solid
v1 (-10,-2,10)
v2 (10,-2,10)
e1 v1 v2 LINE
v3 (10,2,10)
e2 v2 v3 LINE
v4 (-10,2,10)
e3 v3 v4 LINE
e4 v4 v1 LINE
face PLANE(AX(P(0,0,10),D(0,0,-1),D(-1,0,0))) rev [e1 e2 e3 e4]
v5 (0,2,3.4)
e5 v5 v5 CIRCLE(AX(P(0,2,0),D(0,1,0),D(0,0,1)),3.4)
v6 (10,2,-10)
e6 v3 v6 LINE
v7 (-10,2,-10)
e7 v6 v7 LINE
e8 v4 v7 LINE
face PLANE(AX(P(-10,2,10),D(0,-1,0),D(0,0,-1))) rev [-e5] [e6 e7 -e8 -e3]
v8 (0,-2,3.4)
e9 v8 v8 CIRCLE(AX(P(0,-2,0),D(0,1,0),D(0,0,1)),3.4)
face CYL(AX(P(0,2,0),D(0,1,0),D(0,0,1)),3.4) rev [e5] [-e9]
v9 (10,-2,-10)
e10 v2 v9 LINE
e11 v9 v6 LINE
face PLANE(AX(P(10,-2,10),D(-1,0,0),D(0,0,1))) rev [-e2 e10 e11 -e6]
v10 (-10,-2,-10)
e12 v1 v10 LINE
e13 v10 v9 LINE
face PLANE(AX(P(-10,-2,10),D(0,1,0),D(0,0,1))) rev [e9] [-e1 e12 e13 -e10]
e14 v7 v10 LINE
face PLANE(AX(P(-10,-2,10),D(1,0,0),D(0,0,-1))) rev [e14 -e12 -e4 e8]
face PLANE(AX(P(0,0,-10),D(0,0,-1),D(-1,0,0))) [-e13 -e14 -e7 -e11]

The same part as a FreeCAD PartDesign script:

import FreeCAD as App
import Part
import Sketcher

doc = App.newDocument("Part")
body = doc.addObject("PartDesign::Body", "Body")

# Sketch on XY plane
sketch1 = body.newObject("Sketcher::SketchObject", "Sketch")
sketch1.AttachmentSupport = (doc.getObject("XY_Plane"), [""])
sketch1.MapMode = "FlatFace"
sketch1.addGeometry([
    Part.LineSegment(App.Vector(-10, 2, 0), App.Vector(-10, -2, 0)),
    Part.LineSegment(App.Vector(-10, -2, 0), App.Vector(10, -2, 0)),
    Part.LineSegment(App.Vector(10, -2, 0), App.Vector(10, 2, 0)),
    Part.LineSegment(App.Vector(10, 2, 0), App.Vector(-10, 2, 0)),
], False)
sketch1.addConstraint([
    Sketcher.Constraint("Coincident", 0, 2, 1, 1),
    Sketcher.Constraint("Coincident", 1, 2, 2, 1),
    Sketcher.Constraint("Coincident", 2, 2, 3, 1),
    Sketcher.Constraint("Coincident", 3, 2, 0, 1),
    Sketcher.Constraint("Vertical", 0),
    Sketcher.Constraint("Horizontal", 1),
    Sketcher.Constraint("Vertical", 2),
    Sketcher.Constraint("Horizontal", 3),
    Sketcher.Constraint("Symmetric", 0, 2, 2, 2, -1, 1),
    Sketcher.Constraint("DistanceX", 1, 1, 1, 2, 20.0),
    Sketcher.Constraint("DistanceY", 0, 2, 0, 1, 4.0),
])
pad1 = body.newObject("PartDesign::Pad", "Pad")
pad1.Profile = sketch1
pad1.Length = 20
pad1.Midplane = True

# Sketch on XZ plane
sketch2 = body.newObject("Sketcher::SketchObject", "Sketch001")
sketch2.AttachmentSupport = (doc.getObject("XZ_Plane"), [""])
sketch2.MapMode = "FlatFace"
sketch2.AttachmentOffset = App.Placement(App.Vector(0, 0, -2), App.Rotation())
sketch2.addGeometry(Part.Circle(App.Vector(0, 0, 0), App.Vector(0, 0, 1), 3.4), False)
sketch2.addConstraint([
    Sketcher.Constraint("Coincident", 0, 3, -1, 1),
    Sketcher.Constraint("Diameter", 0, 6.8),
])
doc.recompute()
hole = body.newObject("PartDesign::Hole", "Hole")
hole.Profile = sketch2
hole.ThreadType = "None"
hole.Diameter = 6.8
hole.DepthType = "ThroughAll"
hole.Reversed = True

doc.recompute()
